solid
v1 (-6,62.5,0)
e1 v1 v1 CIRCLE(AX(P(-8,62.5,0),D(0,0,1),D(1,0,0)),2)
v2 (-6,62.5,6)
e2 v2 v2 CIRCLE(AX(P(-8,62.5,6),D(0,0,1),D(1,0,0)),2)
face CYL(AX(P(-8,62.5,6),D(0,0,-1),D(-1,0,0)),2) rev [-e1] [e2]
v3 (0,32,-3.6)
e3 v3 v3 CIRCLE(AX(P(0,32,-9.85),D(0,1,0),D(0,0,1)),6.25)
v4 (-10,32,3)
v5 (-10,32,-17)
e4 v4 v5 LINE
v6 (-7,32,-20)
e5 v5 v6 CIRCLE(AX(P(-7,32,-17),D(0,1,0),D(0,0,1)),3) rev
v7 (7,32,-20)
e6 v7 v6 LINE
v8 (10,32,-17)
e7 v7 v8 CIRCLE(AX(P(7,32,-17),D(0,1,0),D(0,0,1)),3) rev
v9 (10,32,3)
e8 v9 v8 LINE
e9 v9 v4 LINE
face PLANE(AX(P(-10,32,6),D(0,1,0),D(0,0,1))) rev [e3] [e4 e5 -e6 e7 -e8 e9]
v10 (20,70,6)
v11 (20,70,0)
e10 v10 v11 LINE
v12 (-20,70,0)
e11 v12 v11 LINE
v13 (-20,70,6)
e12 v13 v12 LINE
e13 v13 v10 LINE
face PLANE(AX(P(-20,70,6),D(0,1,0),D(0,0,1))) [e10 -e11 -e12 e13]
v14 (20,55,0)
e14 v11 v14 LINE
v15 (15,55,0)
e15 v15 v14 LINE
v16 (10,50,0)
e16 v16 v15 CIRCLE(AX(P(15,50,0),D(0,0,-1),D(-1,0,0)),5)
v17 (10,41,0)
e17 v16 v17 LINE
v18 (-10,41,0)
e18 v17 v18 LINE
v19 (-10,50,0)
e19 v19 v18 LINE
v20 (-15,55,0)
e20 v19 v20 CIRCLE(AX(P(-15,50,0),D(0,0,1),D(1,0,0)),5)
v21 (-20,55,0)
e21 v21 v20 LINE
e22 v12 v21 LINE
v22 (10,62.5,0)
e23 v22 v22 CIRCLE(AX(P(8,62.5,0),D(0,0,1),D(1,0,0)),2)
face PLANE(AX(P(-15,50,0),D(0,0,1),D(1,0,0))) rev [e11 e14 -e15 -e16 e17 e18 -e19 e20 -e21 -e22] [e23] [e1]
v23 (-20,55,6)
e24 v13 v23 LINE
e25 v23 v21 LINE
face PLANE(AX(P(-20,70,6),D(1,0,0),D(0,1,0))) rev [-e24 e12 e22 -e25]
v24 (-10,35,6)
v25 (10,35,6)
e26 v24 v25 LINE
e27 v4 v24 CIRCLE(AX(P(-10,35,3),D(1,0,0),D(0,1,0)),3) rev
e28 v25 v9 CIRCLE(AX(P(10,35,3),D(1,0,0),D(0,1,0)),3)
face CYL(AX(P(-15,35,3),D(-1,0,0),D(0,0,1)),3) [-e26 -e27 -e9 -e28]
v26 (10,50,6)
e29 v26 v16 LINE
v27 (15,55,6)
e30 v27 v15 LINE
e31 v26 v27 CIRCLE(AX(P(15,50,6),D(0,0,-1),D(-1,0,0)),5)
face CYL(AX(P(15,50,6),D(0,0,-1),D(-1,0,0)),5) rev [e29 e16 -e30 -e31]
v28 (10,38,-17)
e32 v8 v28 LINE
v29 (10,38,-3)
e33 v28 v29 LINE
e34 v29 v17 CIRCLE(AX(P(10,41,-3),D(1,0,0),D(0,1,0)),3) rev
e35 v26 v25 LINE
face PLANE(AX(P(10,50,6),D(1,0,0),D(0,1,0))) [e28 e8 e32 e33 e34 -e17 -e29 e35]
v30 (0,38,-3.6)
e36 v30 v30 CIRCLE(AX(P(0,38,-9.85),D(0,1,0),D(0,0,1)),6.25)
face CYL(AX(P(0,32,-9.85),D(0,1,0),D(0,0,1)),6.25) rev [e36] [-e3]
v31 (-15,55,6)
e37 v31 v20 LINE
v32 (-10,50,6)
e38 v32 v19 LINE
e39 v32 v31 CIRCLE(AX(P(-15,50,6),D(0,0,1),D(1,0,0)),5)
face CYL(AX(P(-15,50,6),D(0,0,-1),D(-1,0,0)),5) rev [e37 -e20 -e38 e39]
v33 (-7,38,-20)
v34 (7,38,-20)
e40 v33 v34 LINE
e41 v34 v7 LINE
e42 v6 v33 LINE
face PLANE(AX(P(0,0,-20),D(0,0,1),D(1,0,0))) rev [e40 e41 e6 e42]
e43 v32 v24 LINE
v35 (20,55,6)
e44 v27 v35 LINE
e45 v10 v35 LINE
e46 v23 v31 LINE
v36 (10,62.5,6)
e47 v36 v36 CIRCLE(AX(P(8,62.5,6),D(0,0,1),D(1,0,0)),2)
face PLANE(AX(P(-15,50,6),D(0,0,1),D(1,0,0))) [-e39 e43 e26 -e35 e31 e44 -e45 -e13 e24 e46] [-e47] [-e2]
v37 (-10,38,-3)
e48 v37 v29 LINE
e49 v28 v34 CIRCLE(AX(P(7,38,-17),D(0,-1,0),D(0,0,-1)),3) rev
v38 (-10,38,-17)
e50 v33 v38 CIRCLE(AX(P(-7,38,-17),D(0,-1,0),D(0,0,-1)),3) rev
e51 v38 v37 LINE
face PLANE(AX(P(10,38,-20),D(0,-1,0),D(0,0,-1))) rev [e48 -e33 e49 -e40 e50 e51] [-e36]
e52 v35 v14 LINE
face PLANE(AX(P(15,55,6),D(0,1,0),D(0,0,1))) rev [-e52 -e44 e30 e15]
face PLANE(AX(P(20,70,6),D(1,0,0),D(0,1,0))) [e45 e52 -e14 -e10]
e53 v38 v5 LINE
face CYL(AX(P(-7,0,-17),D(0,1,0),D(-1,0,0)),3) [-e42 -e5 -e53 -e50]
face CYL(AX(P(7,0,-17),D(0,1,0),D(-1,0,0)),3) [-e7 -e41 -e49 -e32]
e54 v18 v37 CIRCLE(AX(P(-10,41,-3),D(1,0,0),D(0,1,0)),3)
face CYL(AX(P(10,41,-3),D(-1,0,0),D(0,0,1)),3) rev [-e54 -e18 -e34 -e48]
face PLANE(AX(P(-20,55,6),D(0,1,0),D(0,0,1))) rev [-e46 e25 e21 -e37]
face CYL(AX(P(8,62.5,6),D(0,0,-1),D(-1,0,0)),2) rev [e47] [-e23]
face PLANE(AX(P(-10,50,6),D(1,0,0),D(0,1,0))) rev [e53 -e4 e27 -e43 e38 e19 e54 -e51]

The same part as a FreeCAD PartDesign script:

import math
import FreeCAD as App
import Part
import Sketcher


def edges_at(feature, points):
    """Names of the edges that pass closest to the given points."""
    edges = feature.Shape.Edges
    near = lambda p: min(range(len(edges)), key=lambda i: edges[i].distToShape(Part.Vertex(*p))[0])
    return sorted({f"Edge{near(p) + 1}" for p in points})

doc = App.newDocument("Part")
params = doc.addObject("Spreadsheet::Sheet", "Params")
for row, (alias, value) in enumerate([
    ("sketch1_diameter", "4 mm"),
    ("sketch1_radius", "5 mm"),
    ("sketch1_width", "40 mm"),
    ("sketch1_width2", "5 mm"),
    ("sketch1_height", "15 mm"),
    ("pad1_length", "6 mm"),
    ("sketch2_width", "20 mm"),
    ("sketch2_height", "6 mm"),
    ("pad2_length", "20 mm"),
    ("sketch3_diameter", "12.5 mm"),
    ("pocket1_length", "6 mm"),
    ("fillet_radius", "3 mm"),
    ("fillet2_radius", "3 mm"),
    ("fillet3_radius", "3 mm"),
], start=1):
    params.set(f"A{row}", alias)
    params.set(f"B{row}", "=" + value)
    params.setAlias(f"B{row}", alias)

body = doc.addObject("PartDesign::Body", "Body")

# Sketch on XY plane
sketch1 = body.newObject("Sketcher::SketchObject", "Sketch")
sketch1.AttachmentSupport = (doc.getObject("XY_Plane"), [""])
sketch1.MapMode = "FlatFace"
sketch1.addGeometry([
    Part.LineSegment(App.Vector(20, 70, 0), App.Vector(-20, 70, 0)),  # 0
    Part.LineSegment(App.Vector(-20, 70, 0), App.Vector(-20, 55, 0)),  # 1
    Part.LineSegment(App.Vector(-20, 55, 0), App.Vector(-15, 55, 0)),  # 2
    Part.ArcOfCircle(Part.Circle(App.Vector(-15, 50, 0), App.Vector(0, 0, 1), 5), math.radians(0), math.radians(90)),  # 3
    Part.LineSegment(App.Vector(-10, 50, 0), App.Vector(-10, 32, 0)),  # 4
    Part.LineSegment(App.Vector(-10, 32, 0), App.Vector(10, 32, 0)),  # 5
    Part.LineSegment(App.Vector(10, 32, 0), App.Vector(10, 50, 0)),  # 6
    Part.ArcOfCircle(Part.Circle(App.Vector(15, 50, 0), App.Vector(0, 0, 1), 5), math.radians(90), math.radians(180)),  # 7
    Part.LineSegment(App.Vector(15, 55, 0), App.Vector(20, 55, 0)),  # 8
    Part.LineSegment(App.Vector(20, 55, 0), App.Vector(20, 70, 0)),  # 9
    Part.Circle(App.Vector(8, 62.5, 0), App.Vector(0, 0, 1), 2),  # 10
    Part.Circle(App.Vector(-8, 62.5, 0), App.Vector(0, 0, 1), 2),  # 11
], False)
sketch1.addConstraint([
    Sketcher.Constraint("Coincident", 0, 2, 1, 1),
    Sketcher.Constraint("Coincident", 1, 2, 2, 1),
    Sketcher.Constraint("Tangent", 2, 2, 3, 2),
    Sketcher.Constraint("Tangent", 3, 1, 4, 1),
    Sketcher.Constraint("Coincident", 4, 2, 5, 1),
    Sketcher.Constraint("Coincident", 5, 2, 6, 1),
    Sketcher.Constraint("Tangent", 6, 2, 7, 2),
    Sketcher.Constraint("Tangent", 7, 1, 8, 1),
    Sketcher.Constraint("Coincident", 8, 2, 9, 1),
    Sketcher.Constraint("Coincident", 9, 2, 0, 1),
    Sketcher.Constraint("Horizontal", 0),
    Sketcher.Constraint("Vertical", 1),
    Sketcher.Constraint("Horizontal", 2),
    Sketcher.Constraint("Vertical", 4),
    Sketcher.Constraint("Horizontal", 5),
    Sketcher.Constraint("Vertical", 6),
    Sketcher.Constraint("Horizontal", 8),
    Sketcher.Constraint("Vertical", 9),
    Sketcher.Constraint("Equal", 3, 7),
    Sketcher.Constraint("Equal", 10, 11),
    Sketcher.Constraint("Symmetric", 3, 3, 7, 3, -2),
    Sketcher.Constraint("Symmetric", 10, 3, 11, 3, -2),
    Sketcher.Constraint("Equal", 2, 8),
    Sketcher.Constraint("Diameter", 10, 4.0),
    Sketcher.Constraint("Radius", 3, 5.0),
    Sketcher.Constraint("DistanceX", 0, 2, 0, 1, 40.0),
    Sketcher.Constraint("DistanceX", 2, 1, 2, 2, 5.0),
    Sketcher.Constraint("DistanceY", 1, 2, 1, 1, 15.0),
    Sketcher.Constraint("DistanceY", 4, 2, 4, 1, 18.0),
    Sketcher.Constraint("DistanceY", -1, 1, 3, 3, 50.0),
    Sketcher.Constraint("DistanceX", -1, 1, 10, 3, 8.0),
    Sketcher.Constraint("DistanceY", -1, 1, 10, 3, 62.5),
])
sketch1.setExpression("Constraints[23]", "Params.sketch1_diameter")
sketch1.setExpression("Constraints[24]", "Params.sketch1_radius")
sketch1.setExpression("Constraints[25]", "Params.sketch1_width")
sketch1.setExpression("Constraints[26]", "Params.sketch1_width2")
sketch1.setExpression("Constraints[27]", "Params.sketch1_height")
pad1 = body.newObject("PartDesign::Pad", "Pad")
pad1.Profile = sketch1
pad1.setExpression("Length", "Params.pad1_length")

# Sketch on XY plane
sketch2 = body.newObject("Sketcher::SketchObject", "Sketch001")
sketch2.AttachmentSupport = (doc.getObject("XY_Plane"), [""])
sketch2.MapMode = "FlatFace"
sketch2.addGeometry([
    Part.LineSegment(App.Vector(10, 38, 0), App.Vector(10, 32, 0)),
    Part.LineSegment(App.Vector(10, 32, 0), App.Vector(-10, 32, 0)),
    Part.LineSegment(App.Vector(-10, 32, 0), App.Vector(-10, 38, 0)),
    Part.LineSegment(App.Vector(-10, 38, 0), App.Vector(10, 38, 0)),
], False)
sketch2.addConstraint([
    Sketcher.Constraint("Coincident", 0, 2, 1, 1),
    Sketcher.Constraint("Coincident", 1, 2, 2, 1),
    Sketcher.Constraint("Coincident", 2, 2, 3, 1),
    Sketcher.Constraint("Coincident", 3, 2, 0, 1),
    Sketcher.Constraint("Vertical", 0),
    Sketcher.Constraint("Horizontal", 1),
    Sketcher.Constraint("Vertical", 2),
    Sketcher.Constraint("Horizontal", 3),
    Sketcher.Constraint("DistanceX", 1, 2, 1, 1, 20.0),
    Sketcher.Constraint("DistanceY", 0, 2, 0, 1, 6.0),
    Sketcher.Constraint("DistanceX", -1, 1, 0, 2, 10.0),
    Sketcher.Constraint("DistanceY", -1, 1, 0, 2, 32.0),
])
sketch2.setExpression("Constraints[8]", "Params.sketch2_width")
sketch2.setExpression("Constraints[9]", "Params.sketch2_height")
pad2 = body.newObject("PartDesign::Pad", "Pad001")
pad2.Profile = sketch2
pad2.setExpression("Length", "Params.pad2_length")
pad2.Reversed = True

# Sketch on XZ plane
sketch3 = body.newObject("Sketcher::SketchObject", "Sketch002")
sketch3.AttachmentSupport = (doc.getObject("XZ_Plane"), [""])
sketch3.MapMode = "FlatFace"
sketch3.AttachmentOffset = App.Placement(App.Vector(0, 0, -38), App.Rotation())
sketch3.addGeometry(Part.Circle(App.Vector(0, -10, 0), App.Vector(0, 0, 1), 6), False)
sketch3.addConstraint([
    Sketcher.Constraint("PointOnObject", 0, 3, -2),
    Sketcher.Constraint("Diameter", 0, 12.5),
    Sketcher.Constraint("DistanceY", 0, 3, -1, 1, 9.85),
])
sketch3.setExpression("Constraints[1]", "Params.sketch3_diameter")
pocket1 = body.newObject("PartDesign::Pocket", "Pocket")
pocket1.Profile = sketch3
pocket1.setExpression("Length", "Params.pocket1_length")
pocket1.Reversed = True
doc.recompute()

fillet = body.newObject("PartDesign::Fillet", "Fillet")
fillet.Base = (pocket1, edges_at(pocket1, [(10, 35, -20), (-10, 35, -20)]))
fillet.setExpression("Radius", "Params.fillet_radius")
doc.recompute()

fillet2 = body.newObject("PartDesign::Fillet", "Fillet001")
fillet2.Base = (fillet, edges_at(fillet, [(0, 38, 0)]))
fillet2.setExpression("Radius", "Params.fillet2_radius")
doc.recompute()

fillet3 = body.newObject("PartDesign::Fillet", "Fillet002")
fillet3.Base = (fillet2, edges_at(fillet2, [(0, 32, 6)]))
fillet3.setExpression("Radius", "Params.fillet3_radius")

doc.recompute()
